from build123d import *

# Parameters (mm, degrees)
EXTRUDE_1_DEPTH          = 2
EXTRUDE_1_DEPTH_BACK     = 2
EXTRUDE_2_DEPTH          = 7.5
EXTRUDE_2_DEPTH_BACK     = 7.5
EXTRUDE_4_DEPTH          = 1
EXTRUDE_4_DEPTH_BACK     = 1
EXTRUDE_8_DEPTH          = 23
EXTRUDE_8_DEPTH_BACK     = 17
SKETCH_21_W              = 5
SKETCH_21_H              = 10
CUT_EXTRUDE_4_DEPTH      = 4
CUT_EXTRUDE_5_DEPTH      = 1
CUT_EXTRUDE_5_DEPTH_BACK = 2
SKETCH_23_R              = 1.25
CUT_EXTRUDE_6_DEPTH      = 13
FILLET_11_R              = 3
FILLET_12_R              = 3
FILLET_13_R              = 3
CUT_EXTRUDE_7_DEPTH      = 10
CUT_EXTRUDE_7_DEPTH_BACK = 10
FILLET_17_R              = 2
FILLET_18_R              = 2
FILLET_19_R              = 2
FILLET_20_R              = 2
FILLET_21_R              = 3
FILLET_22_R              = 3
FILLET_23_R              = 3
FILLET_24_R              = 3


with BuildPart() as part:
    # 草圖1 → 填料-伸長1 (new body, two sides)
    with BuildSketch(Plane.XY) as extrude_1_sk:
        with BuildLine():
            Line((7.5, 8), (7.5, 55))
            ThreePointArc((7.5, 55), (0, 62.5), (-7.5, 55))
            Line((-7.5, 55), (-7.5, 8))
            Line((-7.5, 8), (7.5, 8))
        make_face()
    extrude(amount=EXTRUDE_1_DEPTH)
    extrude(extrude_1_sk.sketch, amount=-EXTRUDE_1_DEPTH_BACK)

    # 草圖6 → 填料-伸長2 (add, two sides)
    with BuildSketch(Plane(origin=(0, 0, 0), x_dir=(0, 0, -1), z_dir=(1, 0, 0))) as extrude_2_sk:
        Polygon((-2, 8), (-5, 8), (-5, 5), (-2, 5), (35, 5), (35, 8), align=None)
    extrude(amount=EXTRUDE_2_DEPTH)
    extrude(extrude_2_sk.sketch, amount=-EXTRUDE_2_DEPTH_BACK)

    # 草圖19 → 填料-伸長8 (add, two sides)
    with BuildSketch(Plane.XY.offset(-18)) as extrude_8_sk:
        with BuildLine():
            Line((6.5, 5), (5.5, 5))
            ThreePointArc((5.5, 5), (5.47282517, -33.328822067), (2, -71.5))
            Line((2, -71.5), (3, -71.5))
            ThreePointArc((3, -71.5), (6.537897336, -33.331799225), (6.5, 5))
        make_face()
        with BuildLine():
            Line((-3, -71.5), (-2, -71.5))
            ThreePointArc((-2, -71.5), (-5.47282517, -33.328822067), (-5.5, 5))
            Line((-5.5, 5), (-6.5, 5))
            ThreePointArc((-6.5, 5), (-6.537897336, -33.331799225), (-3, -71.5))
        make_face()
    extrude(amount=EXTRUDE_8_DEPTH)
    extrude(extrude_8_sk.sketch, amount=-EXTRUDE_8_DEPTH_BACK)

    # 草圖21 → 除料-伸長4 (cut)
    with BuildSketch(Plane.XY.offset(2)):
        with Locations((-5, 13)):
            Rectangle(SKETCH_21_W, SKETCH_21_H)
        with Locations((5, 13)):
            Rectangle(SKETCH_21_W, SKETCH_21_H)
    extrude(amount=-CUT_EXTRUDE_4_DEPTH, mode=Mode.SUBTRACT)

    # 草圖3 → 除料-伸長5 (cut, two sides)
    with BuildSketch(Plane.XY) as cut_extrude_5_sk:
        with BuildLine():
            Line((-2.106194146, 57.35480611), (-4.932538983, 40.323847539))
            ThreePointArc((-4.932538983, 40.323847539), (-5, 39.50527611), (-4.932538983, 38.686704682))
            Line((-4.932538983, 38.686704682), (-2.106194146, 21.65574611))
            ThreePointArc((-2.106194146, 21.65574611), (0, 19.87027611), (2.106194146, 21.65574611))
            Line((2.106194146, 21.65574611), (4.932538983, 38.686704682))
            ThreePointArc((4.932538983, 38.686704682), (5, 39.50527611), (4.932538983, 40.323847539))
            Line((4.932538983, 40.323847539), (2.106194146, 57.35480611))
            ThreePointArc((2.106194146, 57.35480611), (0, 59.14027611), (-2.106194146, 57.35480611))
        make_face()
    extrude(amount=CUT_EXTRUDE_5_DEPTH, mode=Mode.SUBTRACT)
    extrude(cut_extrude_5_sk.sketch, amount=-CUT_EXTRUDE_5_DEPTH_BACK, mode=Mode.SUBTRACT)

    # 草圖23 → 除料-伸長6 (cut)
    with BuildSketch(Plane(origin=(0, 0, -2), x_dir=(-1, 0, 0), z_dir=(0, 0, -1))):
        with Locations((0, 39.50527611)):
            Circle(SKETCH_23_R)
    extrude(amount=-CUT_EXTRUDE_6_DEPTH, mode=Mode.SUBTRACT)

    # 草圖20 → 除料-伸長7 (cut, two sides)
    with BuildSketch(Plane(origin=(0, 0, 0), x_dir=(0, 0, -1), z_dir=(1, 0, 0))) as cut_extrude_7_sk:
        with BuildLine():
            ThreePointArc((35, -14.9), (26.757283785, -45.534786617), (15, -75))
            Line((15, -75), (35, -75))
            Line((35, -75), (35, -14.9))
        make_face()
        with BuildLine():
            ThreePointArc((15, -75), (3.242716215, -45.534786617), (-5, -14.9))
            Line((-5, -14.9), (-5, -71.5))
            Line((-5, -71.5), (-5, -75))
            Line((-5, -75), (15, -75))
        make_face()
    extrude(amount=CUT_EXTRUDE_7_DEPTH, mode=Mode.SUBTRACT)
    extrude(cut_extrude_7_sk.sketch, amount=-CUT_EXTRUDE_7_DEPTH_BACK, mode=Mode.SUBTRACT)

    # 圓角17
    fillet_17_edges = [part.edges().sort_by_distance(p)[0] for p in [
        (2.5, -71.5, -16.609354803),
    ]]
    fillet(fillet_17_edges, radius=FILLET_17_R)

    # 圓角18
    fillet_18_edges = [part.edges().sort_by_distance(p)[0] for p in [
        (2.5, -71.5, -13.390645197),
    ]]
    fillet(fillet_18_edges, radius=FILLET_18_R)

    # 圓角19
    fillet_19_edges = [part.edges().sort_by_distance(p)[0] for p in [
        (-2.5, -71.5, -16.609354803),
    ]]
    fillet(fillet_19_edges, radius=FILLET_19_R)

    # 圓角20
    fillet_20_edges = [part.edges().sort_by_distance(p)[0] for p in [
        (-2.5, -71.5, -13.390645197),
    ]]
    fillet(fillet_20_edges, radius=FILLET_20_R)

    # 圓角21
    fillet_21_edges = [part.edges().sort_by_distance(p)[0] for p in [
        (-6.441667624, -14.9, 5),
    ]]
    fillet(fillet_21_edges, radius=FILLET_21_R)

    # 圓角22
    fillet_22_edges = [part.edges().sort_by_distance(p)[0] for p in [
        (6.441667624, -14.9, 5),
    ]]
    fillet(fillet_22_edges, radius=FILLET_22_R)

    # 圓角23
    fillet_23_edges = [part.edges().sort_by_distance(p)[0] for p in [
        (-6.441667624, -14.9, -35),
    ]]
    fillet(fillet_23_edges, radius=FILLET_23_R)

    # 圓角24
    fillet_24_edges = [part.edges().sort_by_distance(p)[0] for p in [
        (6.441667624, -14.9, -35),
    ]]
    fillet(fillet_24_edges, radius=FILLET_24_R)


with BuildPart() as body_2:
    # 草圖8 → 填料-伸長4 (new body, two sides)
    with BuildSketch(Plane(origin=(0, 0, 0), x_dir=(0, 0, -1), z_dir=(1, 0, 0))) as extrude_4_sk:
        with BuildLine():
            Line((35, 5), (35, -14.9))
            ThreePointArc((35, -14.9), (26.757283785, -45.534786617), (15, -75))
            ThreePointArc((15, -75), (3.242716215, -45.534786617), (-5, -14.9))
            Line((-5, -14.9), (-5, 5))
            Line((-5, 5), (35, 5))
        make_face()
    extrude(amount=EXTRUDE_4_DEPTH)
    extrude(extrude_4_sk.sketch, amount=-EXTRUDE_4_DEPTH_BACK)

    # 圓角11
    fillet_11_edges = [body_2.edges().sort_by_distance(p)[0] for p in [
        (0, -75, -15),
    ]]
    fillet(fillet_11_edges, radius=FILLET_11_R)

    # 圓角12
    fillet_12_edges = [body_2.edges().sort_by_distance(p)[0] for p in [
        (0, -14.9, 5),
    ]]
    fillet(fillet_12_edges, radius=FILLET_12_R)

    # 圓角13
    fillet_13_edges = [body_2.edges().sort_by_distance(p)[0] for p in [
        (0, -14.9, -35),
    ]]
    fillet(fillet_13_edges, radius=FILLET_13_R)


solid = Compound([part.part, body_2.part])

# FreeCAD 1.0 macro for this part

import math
import FreeCAD as App
import Part
import Sketcher


def edges_at(feature, points):
    """Names of the edges that pass closest to the given points."""
    edges = feature.Shape.Edges
    near = lambda p: min(range(len(edges)), key=lambda i: edges[i].distToShape(Part.Vertex(*p))[0])
    return sorted({f"Edge{near(p) + 1}" for p in points})

doc = App.newDocument("Part")
body = doc.addObject("PartDesign::Body", "Body")

sketch1 = doc.addObject("Sketcher::SketchObject", "Sketch")
body.addObject(sketch1)
sketch1.AttachmentSupport = (doc.XY_Plane, [""])
sketch1.MapMode = "FlatFace"
sketch1.addGeometry([
    Part.LineSegment(App.Vector(8, 8, 0), App.Vector(8, 55, 0)),
    Part.ArcOfCircle(Part.Circle(App.Vector(0, 55, 0), App.Vector(0, 0, 1), 8), math.radians(0), math.radians(180)),
    Part.LineSegment(App.Vector(-8, 55, 0), App.Vector(-8, 8, 0)),
    Part.LineSegment(App.Vector(-8, 8, 0), App.Vector(8, 8, 0)),
], False)
sketch1.addConstraint([
    Sketcher.Constraint("Tangent", 0, 2, 1, 1),
    Sketcher.Constraint("Tangent", 1, 2, 2, 1),
    Sketcher.Constraint("Coincident", 2, 2, 3, 1),
    Sketcher.Constraint("Coincident", 3, 2, 0, 1),
    Sketcher.Constraint("Vertical", 0),
    Sketcher.Constraint("Vertical", 2),
    Sketcher.Constraint("Horizontal", 3),
    Sketcher.Constraint("PointOnObject", 1, 3, -2),
    Sketcher.Constraint("Radius", 1, 7.5),
    Sketcher.Constraint("DistanceY", 0, 1, 0, 2, 47.0),
    Sketcher.Constraint("DistanceY", -1, 1, 1, 3, 55.0),
])
pad1 = doc.addObject("PartDesign::Pad", "Pad")
body.addObject(pad1)
pad1.Profile = sketch1
pad1.Type = "TwoLengths"
pad1.Length = 2
pad1.Length2 = 2

sketch2 = doc.addObject("Sketcher::SketchObject", "Sketch001")
body.addObject(sketch2)
sketch2.AttachmentSupport = (doc.YZ_Plane, [""])
sketch2.MapMode = "FlatFace"
sketch2.addGeometry([
    Part.LineSegment(App.Vector(8, 5, 0), App.Vector(5, 5, 0)),
    Part.LineSegment(App.Vector(5, 5, 0), App.Vector(5, -35, 0)),
    Part.LineSegment(App.Vector(5, -35, 0), App.Vector(8, -35, 0)),
    Part.LineSegment(App.Vector(8, -35, 0), App.Vector(8, 5, 0)),
], False)
sketch2.addConstraint([
    Sketcher.Constraint("Coincident", 0, 2, 1, 1),
    Sketcher.Constraint("Coincident", 1, 2, 2, 1),
    Sketcher.Constraint("Coincident", 2, 2, 3, 1),
    Sketcher.Constraint("Coincident", 3, 2, 0, 1),
    Sketcher.Constraint("Horizontal", 0),
    Sketcher.Constraint("Vertical", 1),
    Sketcher.Constraint("Horizontal", 2),
    Sketcher.Constraint("Vertical", 3),
    Sketcher.Constraint("DistanceX", 0, 2, 0, 1, 3.0),
    Sketcher.Constraint("DistanceY", 1, 2, 1, 1, 40.0),
    Sketcher.Constraint("DistanceX", -1, 1, 0, 2, 5.0),
    Sketcher.Constraint("DistanceY", -1, 1, 0, 2, 5.0),
])
pad2 = doc.addObject("PartDesign::Pad", "Pad001")
body.addObject(pad2)
pad2.Profile = sketch2
pad2.Type = "TwoLengths"
pad2.Length = 7.5
pad2.Length2 = 7.5

sketch3 = doc.addObject("Sketcher::SketchObject", "Sketch002")
body.addObject(sketch3)
sketch3.AttachmentSupport = (doc.XY_Plane, [""])
sketch3.MapMode = "FlatFace"
sketch3.AttachmentOffset = App.Placement(App.Vector(0, 0, -18), App.Rotation())
sketch3.addGeometry([
    Part.LineSegment(App.Vector(6.5, 5, 0), App.Vector(5.5, 5, 0)),
    Part.ArcOfCircle(Part.Circle(App.Vector(-420, -13.9, 0), App.Vector(0, 0, 1), 425.9), math.radians(-7.78), math.radians(2.54)),
    Part.LineSegment(App.Vector(2, -71.5, 0), App.Vector(3, -71.5, 0)),
    Part.ArcOfCircle(Part.Circle(App.Vector(-403.5, -14.6, 0), App.Vector(0, 0, 1), 410.5), math.radians(-7.97), math.radians(2.73)),
    Part.LineSegment(App.Vector(-3, -71.5, 0), App.Vector(-2, -71.5, 0)),
    Part.ArcOfCircle(Part.Circle(App.Vector(420, -13.9, 0), App.Vector(0, 0, 1), 425.9), math.radians(177.46), math.radians(187.78)),
    Part.LineSegment(App.Vector(-5.5, 5, 0), App.Vector(-6.5, 5, 0)),
    Part.ArcOfCircle(Part.Circle(App.Vector(403.5, -14.6, 0), App.Vector(0, 0, 1), 410.5), math.radians(177.27), math.radians(187.97)),
], False)
sketch3.addConstraint([
    Sketcher.Constraint("Coincident", 0, 2, 1, 2),
    Sketcher.Constraint("Coincident", 1, 1, 2, 1),
    Sketcher.Constraint("Coincident", 2, 2, 3, 1),
    Sketcher.Constraint("Coincident", 3, 2, 0, 1),
    Sketcher.Constraint("Coincident", 4, 2, 5, 2),
    Sketcher.Constraint("Coincident", 5, 1, 6, 1),
    Sketcher.Constraint("Coincident", 6, 2, 7, 1),
    Sketcher.Constraint("Coincident", 7, 2, 4, 1),
    Sketcher.Constraint("Horizontal", 0),
    Sketcher.Constraint("Horizontal", 2),
    Sketcher.Constraint("Horizontal", 4),
    Sketcher.Constraint("Horizontal", 6),
    Sketcher.Constraint("Equal", 1, 5),
    Sketcher.Constraint("Equal", 3, 7),
    Sketcher.Constraint("Symmetric", 1, 3, 5, 3, -2),
    Sketcher.Constraint("Symmetric", 3, 3, 7, 3, -2),
    Sketcher.Constraint("Horizontal", 2, 2, 4, 2),
    Sketcher.Constraint("Equal", 0, 2),
    Sketcher.Constraint("DistanceX", 0, 2, 0, 1, 1.0),
    Sketcher.Constraint("DistanceX", 6, 2, 6, 1, 1.0),
    Sketcher.Constraint("DistanceY", -1, 1, 0, 2, 5.0),
    Sketcher.Constraint("DistanceX", -1, 1, 1, 1, 2.0),
    Sketcher.Constraint("DistanceX", 5, 1, 0, 2, 11.0),
    Sketcher.Constraint("DistanceY", 2, 2, -1, 1, 71.5),
    Sketcher.Constraint("Radius", 3, 410.480188),
    Sketcher.Constraint("Radius", 1, 425.917907),
])
pad3 = doc.addObject("PartDesign::Pad", "Pad002")
body.addObject(pad3)
pad3.Profile = sketch3
pad3.Type = "TwoLengths"
pad3.Length = 23
pad3.Length2 = 17

sketch4 = doc.addObject("Sketcher::SketchObject", "Sketch003")
body.addObject(sketch4)
sketch4.AttachmentSupport = (doc.XY_Plane, [""])
sketch4.MapMode = "FlatFace"
sketch4.AttachmentOffset = App.Placement(App.Vector(0, 0, 2), App.Rotation())
sketch4.addGeometry([
    Part.LineSegment(App.Vector(-8, 18, 0), App.Vector(-8, 8, 0)),
    Part.LineSegment(App.Vector(-8, 8, 0), App.Vector(-2, 8, 0)),
    Part.LineSegment(App.Vector(-2, 8, 0), App.Vector(-2, 18, 0)),
    Part.LineSegment(App.Vector(-2, 18, 0), App.Vector(-8, 18, 0)),
    Part.LineSegment(App.Vector(2, 18, 0), App.Vector(2, 8, 0)),
    Part.LineSegment(App.Vector(2, 8, 0), App.Vector(8, 8, 0)),
    Part.LineSegment(App.Vector(8, 8, 0), App.Vector(8, 18, 0)),
    Part.LineSegment(App.Vector(8, 18, 0), App.Vector(2, 18, 0)),
], False)
sketch4.addConstraint([
    Sketcher.Constraint("Coincident", 0, 2, 1, 1),
    Sketcher.Constraint("Coincident", 1, 2, 2, 1),
    Sketcher.Constraint("Coincident", 2, 2, 3, 1),
    Sketcher.Constraint("Coincident", 3, 2, 0, 1),
    Sketcher.Constraint("Coincident", 4, 2, 5, 1),
    Sketcher.Constraint("Coincident", 5, 2, 6, 1),
    Sketcher.Constraint("Coincident", 6, 2, 7, 1),
    Sketcher.Constraint("Coincident", 7, 2, 4, 1),
    Sketcher.Constraint("Vertical", 0),
    Sketcher.Constraint("Horizontal", 1),
    Sketcher.Constraint("Vertical", 2),
    Sketcher.Constraint("Horizontal", 3),
    Sketcher.Constraint("Vertical", 4),
    Sketcher.Constraint("Horizontal", 5),
    Sketcher.Constraint("Vertical", 6),
    Sketcher.Constraint("Horizontal", 7),
    Sketcher.Constraint("Symmetric", 1, 2, 4, 2, -2),
    Sketcher.Constraint("Symmetric", 3, 2, 6, 2, -2),
    Sketcher.Constraint("DistanceX", 1, 1, 1, 2, 5.0),
    Sketcher.Constraint("DistanceY", 0, 2, 0, 1, 10.0),
    Sketcher.Constraint("DistanceY", -1, 1, 0, 2, 8.0),
    Sketcher.Constraint("DistanceX", 1, 2, 4, 2, 5.0),
])
pocket1 = doc.addObject("PartDesign::Pocket", "Pocket")
body.addObject(pocket1)
pocket1.Profile = sketch4
pocket1.Length = 4

sketch5 = doc.addObject("Sketcher::SketchObject", "Sketch004")
body.addObject(sketch5)
sketch5.AttachmentSupport = (doc.XY_Plane, [""])
sketch5.MapMode = "FlatFace"
sketch5.addGeometry([
    Part.LineSegment(App.Vector(-2.1, 57.4, 0), App.Vector(-4.9, 40.3, 0)),
    Part.ArcOfCircle(Part.Circle(App.Vector(0, 39.5, 0), App.Vector(0, 0, 1), 5), math.radians(170.58), math.radians(189.42)),
    Part.LineSegment(App.Vector(-4.9, 38.7, 0), App.Vector(-2.1, 21.7, 0)),
    Part.ArcOfCircle(Part.Circle(App.Vector(0, 22, 0), App.Vector(0, 0, 1), 2.1), math.radians(-171), math.radians(-9)),
    Part.LineSegment(App.Vector(2.1, 21.7, 0), App.Vector(4.9, 38.7, 0)),
    Part.ArcOfCircle(Part.Circle(App.Vector(0, 39.5, 0), App.Vector(0, 0, 1), 5), math.radians(-9.42), math.radians(9.42)),
    Part.LineSegment(App.Vector(4.9, 40.3, 0), App.Vector(2.1, 57.4, 0)),
    Part.ArcOfCircle(Part.Circle(App.Vector(0, 57, 0), App.Vector(0, 0, 1), 2.1), math.radians(9), math.radians(171)),
], False)
sketch5.addConstraint([
    Sketcher.Constraint("Tangent", 0, 2, 1, 1),
    Sketcher.Constraint("Tangent", 1, 2, 2, 1),
    Sketcher.Constraint("Tangent", 2, 2, 3, 1),
    Sketcher.Constraint("Tangent", 3, 2, 4, 1),
    Sketcher.Constraint("Tangent", 4, 2, 5, 1),
    Sketcher.Constraint("Tangent", 5, 2, 6, 1),
    Sketcher.Constraint("Tangent", 6, 2, 7, 1),
    Sketcher.Constraint("Tangent", 7, 2, 0, 1),
    Sketcher.Constraint("Coincident", 5, 3, 1, 3),
    Sketcher.Constraint("Equal", 1, 5),
    Sketcher.Constraint("Equal", 3, 7),
    Sketcher.Constraint("Symmetric", 2, 2, 3, 2, -2),
    Sketcher.Constraint("PointOnObject", 7, 3, -2),
    Sketcher.Constraint("Parallel", 0, 4),
    Sketcher.Constraint("Radius", 1, 5.0),
    Sketcher.Constraint("Radius", 3, 2.135),
    Sketcher.Constraint("DistanceY", 3, 3, 7, 3, 35.0),
    Sketcher.Constraint("DistanceY", -1, 1, 1, 3, 39.505276),
])
pocket2 = doc.addObject("PartDesign::Pocket", "Pocket001")
body.addObject(pocket2)
pocket2.Profile = sketch5
pocket2.Type = "TwoLengths"
pocket2.Length = 1
pocket2.Length2 = 2
pocket2.Reversed = True

sketch6 = doc.addObject("Sketcher::SketchObject", "Sketch005")
body.addObject(sketch6)
sketch6.AttachmentSupport = (doc.XY_Plane, [""])
sketch6.MapMode = "FlatFace"
sketch6.AttachmentOffset = App.Placement(App.Vector(0, 0, -2), App.Rotation())
sketch6.addGeometry(Part.Circle(App.Vector(0, 39.5, 0), App.Vector(0, 0, 1), 1.2), False)
sketch6.addConstraint([
    Sketcher.Constraint("PointOnObject", 0, 3, -2),
    Sketcher.Constraint("Diameter", 0, 2.5),
    Sketcher.Constraint("DistanceY", -1, 1, 0, 3, 39.505276),
])
pocket3 = doc.addObject("PartDesign::Pocket", "Pocket002")
body.addObject(pocket3)
pocket3.Profile = sketch6
pocket3.Length = 13
pocket3.Reversed = True

sketch7 = doc.addObject("Sketcher::SketchObject", "Sketch006")
body.addObject(sketch7)
sketch7.AttachmentSupport = (doc.YZ_Plane, [""])
sketch7.MapMode = "FlatFace"
sketch7.addGeometry([
    Part.ArcOfCircle(Part.Circle(App.Vector(40, 231, 0), App.Vector(0, 0, 1), 272), math.radians(-115.1), math.radians(-101.71)),
    Part.LineSegment(App.Vector(-75, -15, 0), App.Vector(-75, -35, 0)),
    Part.LineSegment(App.Vector(-75, -35, 0), App.Vector(-15, -35, 0)),
    Part.ArcOfCircle(Part.Circle(App.Vector(40, -261, 0), App.Vector(0, 0, 1), 272), math.radians(101.71), math.radians(115.1)),
    Part.LineSegment(App.Vector(-15, 5, 0), App.Vector(-75, 5, 0)),
    Part.LineSegment(App.Vector(-75, 5, 0), App.Vector(-75, -15, 0)),
], False)
sketch7.addConstraint([
    Sketcher.Constraint("Coincident", 0, 1, 1, 1),
    Sketcher.Constraint("Coincident", 1, 2, 2, 1),
    Sketcher.Constraint("Coincident", 2, 2, 0, 2),
    Sketcher.Constraint("Coincident", 3, 1, 4, 1),
    Sketcher.Constraint("Coincident", 4, 2, 5, 1),
    Sketcher.Constraint("Coincident", 5, 2, 3, 2),
    Sketcher.Constraint("Vertical", 1),
    Sketcher.Constraint("Horizontal", 2),
    Sketcher.Constraint("Horizontal", 4),
    Sketcher.Constraint("Vertical", 5),
    Sketcher.Constraint("Coincident", 5, 2, 0, 1),
    Sketcher.Constraint("Equal", 0, 3),
    Sketcher.Constraint("Vertical", 0, 3, 3, 3),
    Sketcher.Constraint("Vertical", 2, 2, 3, 1),
    Sketcher.Constraint("DistanceY", 1, 2, 1, 1, 20.0),
    Sketcher.Constraint("DistanceX", 2, 1, 2, 2, 60.1),
    Sketcher.Constraint("DistanceY", 0, 1, -1, 1, 15.0),
    Sketcher.Constraint("DistanceX", 1, 2, -1, 1, 75.0),
    Sketcher.Constraint("Radius", 0, 271.710382),
])
pocket4 = doc.addObject("PartDesign::Pocket", "Pocket003")
body.addObject(pocket4)
pocket4.Profile = sketch7
pocket4.Type = "ThroughAll"
pocket4.Midplane = True
doc.recompute()

fillet = doc.addObject("PartDesign::Fillet", "Fillet")
body.addObject(fillet)
fillet.Base = (pocket4, edges_at(pocket4, [(2.5, -71.5, -16.609)]))
fillet.Radius = 2
doc.recompute()

fillet2 = doc.addObject("PartDesign::Fillet", "Fillet001")
body.addObject(fillet2)
fillet2.Base = (fillet, edges_at(fillet, [(2.5, -71.5, -13.391)]))
fillet2.Radius = 2
doc.recompute()

fillet3 = doc.addObject("PartDesign::Fillet", "Fillet002")
body.addObject(fillet3)
fillet3.Base = (fillet2, edges_at(fillet2, [(-2.5, -71.5, -16.609)]))
fillet3.Radius = 2
doc.recompute()

fillet4 = doc.addObject("PartDesign::Fillet", "Fillet003")
body.addObject(fillet4)
fillet4.Base = (fillet3, edges_at(fillet3, [(-2.5, -71.5, -13.391)]))
fillet4.Radius = 2
doc.recompute()

fillet5 = doc.addObject("PartDesign::Fillet", "Fillet004")
body.addObject(fillet5)
fillet5.Base = (fillet4, edges_at(fillet4, [(-6.442, -14.9, 5)]))
fillet5.Radius = 3
doc.recompute()

fillet6 = doc.addObject("PartDesign::Fillet", "Fillet005")
body.addObject(fillet6)
fillet6.Base = (fillet5, edges_at(fillet5, [(6.442, -14.9, 5)]))
fillet6.Radius = 3
doc.recompute()

fillet7 = doc.addObject("PartDesign::Fillet", "Fillet006")
body.addObject(fillet7)
fillet7.Base = (fillet6, edges_at(fillet6, [(-6.442, -14.9, -35)]))
fillet7.Radius = 3
doc.recompute()

fillet8 = doc.addObject("PartDesign::Fillet", "Fillet007")
body.addObject(fillet8)
fillet8.Base = (fillet7, edges_at(fillet7, [(6.442, -14.9, -35)]))
fillet8.Radius = 3
body2 = doc.addObject("PartDesign::Body", "Body001")

sketch8 = doc.addObject("Sketcher::SketchObject", "Sketch007")
body2.addObject(sketch8)
sketch8.AttachmentSupport = (doc.getObject("YZ_Plane001"), [""])
sketch8.MapMode = "FlatFace"
sketch8.addGeometry([
    Part.LineSegment(App.Vector(-15, -35, 0), App.Vector(5, -35, 0)),
    Part.LineSegment(App.Vector(5, -35, 0), App.Vector(5, 5, 0)),
    Part.LineSegment(App.Vector(5, 5, 0), App.Vector(-15, 5, 0)),
    Part.ArcOfCircle(Part.Circle(App.Vector(40, -261, 0), App.Vector(0, 0, 1), 272), math.radians(101.71), math.radians(115.1)),
    Part.ArcOfCircle(Part.Circle(App.Vector(40, 231, 0), App.Vector(0, 0, 1), 272), math.radians(-115.1), math.radians(-101.71)),
], False)
sketch8.addConstraint([
    Sketcher.Constraint("Coincident", 0, 2, 1, 1),
    Sketcher.Constraint("Coincident", 1, 2, 2, 1),
    Sketcher.Constraint("Coincident", 2, 2, 3, 1),
    Sketcher.Constraint("Coincident", 3, 2, 4, 1),
    Sketcher.Constraint("Coincident", 4, 2, 0, 1),
    Sketcher.Constraint("Horizontal", 0),
    Sketcher.Constraint("Vertical", 1),
    Sketcher.Constraint("Horizontal", 2),
    Sketcher.Constraint("Equal", 3, 4),
    Sketcher.Constraint("Vertical", 3, 3, 4, 3),
    Sketcher.Constraint("Vertical", 2, 2, 4, 2),
    Sketcher.Constraint("DistanceY", 1, 1, 1, 2, 40.0),
    Sketcher.Constraint("DistanceX", 0, 1, 0, 2, 19.9),
    Sketcher.Constraint("DistanceX", -1, 1, 0, 2, 5.0),
    Sketcher.Constraint("DistanceY", 0, 2, -1, 1, 35.0),
    Sketcher.Constraint("Radius", 3, 271.710382),
    Sketcher.Constraint("DistanceX", -1, 1, 3, 3, 40.258879),
])
pad4 = doc.addObject("PartDesign::Pad", "Pad003")
body2.addObject(pad4)
pad4.Profile = sketch8
pad4.Type = "TwoLengths"
pad4.Length = 1
pad4.Length2 = 1
doc.recompute()

fillet9 = doc.addObject("PartDesign::Fillet", "Fillet008")
body2.addObject(fillet9)
fillet9.Base = (pad4, edges_at(pad4, [(0, -75, -15)]))
fillet9.Radius = 3
doc.recompute()

fillet10 = doc.addObject("PartDesign::Fillet", "Fillet009")
body2.addObject(fillet10)
fillet10.Base = (fillet9, edges_at(fillet9, [(0, -14.9, 5)]))
fillet10.Radius = 3
doc.recompute()

fillet11 = doc.addObject("PartDesign::Fillet", "Fillet010")
body2.addObject(fillet11)
fillet11.Base = (fillet10, edges_at(fillet10, [(0, -14.9, -35)]))
fillet11.Radius = 3

doc.recompute()
